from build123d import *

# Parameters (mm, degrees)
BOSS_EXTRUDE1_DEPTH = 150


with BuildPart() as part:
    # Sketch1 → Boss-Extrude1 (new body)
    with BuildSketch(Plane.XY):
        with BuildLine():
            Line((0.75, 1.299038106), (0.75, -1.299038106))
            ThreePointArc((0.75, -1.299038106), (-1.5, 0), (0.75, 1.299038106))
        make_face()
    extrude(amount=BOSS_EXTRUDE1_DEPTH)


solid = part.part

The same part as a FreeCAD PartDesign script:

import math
import FreeCAD as App
import Part
import Sketcher

doc = App.newDocument("Part")
body = doc.addObject("PartDesign::Body", "Body")

# Sketch on XY plane
sketch1 = doc.addObject("Sketcher::SketchObject", "Sketch")
body.addObject(sketch1)
sketch1.AttachmentSupport = (doc.XY_Plane, [""])
sketch1.MapMode = "FlatFace"
sketch1.addGeometry(Part.LineSegment(App.Vector(0.8, -1.3, 0), App.Vector(0.8, 1.3, 0)), False)
sketch1.addGeometry(Part.ArcOfCircle(Part.Circle(App.Vector(0, 0, 0), App.Vector(0, 0, 1), 1.5), math.radians(60), math.radians(300)), False)
sketch1.addConstraint(Sketcher.Constraint("Coincident", 0, 1, 1, 2))
sketch1.addConstraint(Sketcher.Constraint("Coincident", 1, 1, 0, 2))
sketch1.addConstraint(Sketcher.Constraint("Vertical", 0))
sketch1.addConstraint(Sketcher.Constraint("Coincident", 1, 3, -1, 1))
sketch1.addConstraint(Sketcher.Constraint("Radius", 1, 1.5))
sketch1.addConstraint(Sketcher.Constraint("DistanceX", -1, 1, 0, 1, 0.75))
pad1 = doc.addObject("PartDesign::Pad", "Pad")
body.addObject(pad1)
pad1.Profile = sketch1
pad1.Length = 150

doc.recompute()
